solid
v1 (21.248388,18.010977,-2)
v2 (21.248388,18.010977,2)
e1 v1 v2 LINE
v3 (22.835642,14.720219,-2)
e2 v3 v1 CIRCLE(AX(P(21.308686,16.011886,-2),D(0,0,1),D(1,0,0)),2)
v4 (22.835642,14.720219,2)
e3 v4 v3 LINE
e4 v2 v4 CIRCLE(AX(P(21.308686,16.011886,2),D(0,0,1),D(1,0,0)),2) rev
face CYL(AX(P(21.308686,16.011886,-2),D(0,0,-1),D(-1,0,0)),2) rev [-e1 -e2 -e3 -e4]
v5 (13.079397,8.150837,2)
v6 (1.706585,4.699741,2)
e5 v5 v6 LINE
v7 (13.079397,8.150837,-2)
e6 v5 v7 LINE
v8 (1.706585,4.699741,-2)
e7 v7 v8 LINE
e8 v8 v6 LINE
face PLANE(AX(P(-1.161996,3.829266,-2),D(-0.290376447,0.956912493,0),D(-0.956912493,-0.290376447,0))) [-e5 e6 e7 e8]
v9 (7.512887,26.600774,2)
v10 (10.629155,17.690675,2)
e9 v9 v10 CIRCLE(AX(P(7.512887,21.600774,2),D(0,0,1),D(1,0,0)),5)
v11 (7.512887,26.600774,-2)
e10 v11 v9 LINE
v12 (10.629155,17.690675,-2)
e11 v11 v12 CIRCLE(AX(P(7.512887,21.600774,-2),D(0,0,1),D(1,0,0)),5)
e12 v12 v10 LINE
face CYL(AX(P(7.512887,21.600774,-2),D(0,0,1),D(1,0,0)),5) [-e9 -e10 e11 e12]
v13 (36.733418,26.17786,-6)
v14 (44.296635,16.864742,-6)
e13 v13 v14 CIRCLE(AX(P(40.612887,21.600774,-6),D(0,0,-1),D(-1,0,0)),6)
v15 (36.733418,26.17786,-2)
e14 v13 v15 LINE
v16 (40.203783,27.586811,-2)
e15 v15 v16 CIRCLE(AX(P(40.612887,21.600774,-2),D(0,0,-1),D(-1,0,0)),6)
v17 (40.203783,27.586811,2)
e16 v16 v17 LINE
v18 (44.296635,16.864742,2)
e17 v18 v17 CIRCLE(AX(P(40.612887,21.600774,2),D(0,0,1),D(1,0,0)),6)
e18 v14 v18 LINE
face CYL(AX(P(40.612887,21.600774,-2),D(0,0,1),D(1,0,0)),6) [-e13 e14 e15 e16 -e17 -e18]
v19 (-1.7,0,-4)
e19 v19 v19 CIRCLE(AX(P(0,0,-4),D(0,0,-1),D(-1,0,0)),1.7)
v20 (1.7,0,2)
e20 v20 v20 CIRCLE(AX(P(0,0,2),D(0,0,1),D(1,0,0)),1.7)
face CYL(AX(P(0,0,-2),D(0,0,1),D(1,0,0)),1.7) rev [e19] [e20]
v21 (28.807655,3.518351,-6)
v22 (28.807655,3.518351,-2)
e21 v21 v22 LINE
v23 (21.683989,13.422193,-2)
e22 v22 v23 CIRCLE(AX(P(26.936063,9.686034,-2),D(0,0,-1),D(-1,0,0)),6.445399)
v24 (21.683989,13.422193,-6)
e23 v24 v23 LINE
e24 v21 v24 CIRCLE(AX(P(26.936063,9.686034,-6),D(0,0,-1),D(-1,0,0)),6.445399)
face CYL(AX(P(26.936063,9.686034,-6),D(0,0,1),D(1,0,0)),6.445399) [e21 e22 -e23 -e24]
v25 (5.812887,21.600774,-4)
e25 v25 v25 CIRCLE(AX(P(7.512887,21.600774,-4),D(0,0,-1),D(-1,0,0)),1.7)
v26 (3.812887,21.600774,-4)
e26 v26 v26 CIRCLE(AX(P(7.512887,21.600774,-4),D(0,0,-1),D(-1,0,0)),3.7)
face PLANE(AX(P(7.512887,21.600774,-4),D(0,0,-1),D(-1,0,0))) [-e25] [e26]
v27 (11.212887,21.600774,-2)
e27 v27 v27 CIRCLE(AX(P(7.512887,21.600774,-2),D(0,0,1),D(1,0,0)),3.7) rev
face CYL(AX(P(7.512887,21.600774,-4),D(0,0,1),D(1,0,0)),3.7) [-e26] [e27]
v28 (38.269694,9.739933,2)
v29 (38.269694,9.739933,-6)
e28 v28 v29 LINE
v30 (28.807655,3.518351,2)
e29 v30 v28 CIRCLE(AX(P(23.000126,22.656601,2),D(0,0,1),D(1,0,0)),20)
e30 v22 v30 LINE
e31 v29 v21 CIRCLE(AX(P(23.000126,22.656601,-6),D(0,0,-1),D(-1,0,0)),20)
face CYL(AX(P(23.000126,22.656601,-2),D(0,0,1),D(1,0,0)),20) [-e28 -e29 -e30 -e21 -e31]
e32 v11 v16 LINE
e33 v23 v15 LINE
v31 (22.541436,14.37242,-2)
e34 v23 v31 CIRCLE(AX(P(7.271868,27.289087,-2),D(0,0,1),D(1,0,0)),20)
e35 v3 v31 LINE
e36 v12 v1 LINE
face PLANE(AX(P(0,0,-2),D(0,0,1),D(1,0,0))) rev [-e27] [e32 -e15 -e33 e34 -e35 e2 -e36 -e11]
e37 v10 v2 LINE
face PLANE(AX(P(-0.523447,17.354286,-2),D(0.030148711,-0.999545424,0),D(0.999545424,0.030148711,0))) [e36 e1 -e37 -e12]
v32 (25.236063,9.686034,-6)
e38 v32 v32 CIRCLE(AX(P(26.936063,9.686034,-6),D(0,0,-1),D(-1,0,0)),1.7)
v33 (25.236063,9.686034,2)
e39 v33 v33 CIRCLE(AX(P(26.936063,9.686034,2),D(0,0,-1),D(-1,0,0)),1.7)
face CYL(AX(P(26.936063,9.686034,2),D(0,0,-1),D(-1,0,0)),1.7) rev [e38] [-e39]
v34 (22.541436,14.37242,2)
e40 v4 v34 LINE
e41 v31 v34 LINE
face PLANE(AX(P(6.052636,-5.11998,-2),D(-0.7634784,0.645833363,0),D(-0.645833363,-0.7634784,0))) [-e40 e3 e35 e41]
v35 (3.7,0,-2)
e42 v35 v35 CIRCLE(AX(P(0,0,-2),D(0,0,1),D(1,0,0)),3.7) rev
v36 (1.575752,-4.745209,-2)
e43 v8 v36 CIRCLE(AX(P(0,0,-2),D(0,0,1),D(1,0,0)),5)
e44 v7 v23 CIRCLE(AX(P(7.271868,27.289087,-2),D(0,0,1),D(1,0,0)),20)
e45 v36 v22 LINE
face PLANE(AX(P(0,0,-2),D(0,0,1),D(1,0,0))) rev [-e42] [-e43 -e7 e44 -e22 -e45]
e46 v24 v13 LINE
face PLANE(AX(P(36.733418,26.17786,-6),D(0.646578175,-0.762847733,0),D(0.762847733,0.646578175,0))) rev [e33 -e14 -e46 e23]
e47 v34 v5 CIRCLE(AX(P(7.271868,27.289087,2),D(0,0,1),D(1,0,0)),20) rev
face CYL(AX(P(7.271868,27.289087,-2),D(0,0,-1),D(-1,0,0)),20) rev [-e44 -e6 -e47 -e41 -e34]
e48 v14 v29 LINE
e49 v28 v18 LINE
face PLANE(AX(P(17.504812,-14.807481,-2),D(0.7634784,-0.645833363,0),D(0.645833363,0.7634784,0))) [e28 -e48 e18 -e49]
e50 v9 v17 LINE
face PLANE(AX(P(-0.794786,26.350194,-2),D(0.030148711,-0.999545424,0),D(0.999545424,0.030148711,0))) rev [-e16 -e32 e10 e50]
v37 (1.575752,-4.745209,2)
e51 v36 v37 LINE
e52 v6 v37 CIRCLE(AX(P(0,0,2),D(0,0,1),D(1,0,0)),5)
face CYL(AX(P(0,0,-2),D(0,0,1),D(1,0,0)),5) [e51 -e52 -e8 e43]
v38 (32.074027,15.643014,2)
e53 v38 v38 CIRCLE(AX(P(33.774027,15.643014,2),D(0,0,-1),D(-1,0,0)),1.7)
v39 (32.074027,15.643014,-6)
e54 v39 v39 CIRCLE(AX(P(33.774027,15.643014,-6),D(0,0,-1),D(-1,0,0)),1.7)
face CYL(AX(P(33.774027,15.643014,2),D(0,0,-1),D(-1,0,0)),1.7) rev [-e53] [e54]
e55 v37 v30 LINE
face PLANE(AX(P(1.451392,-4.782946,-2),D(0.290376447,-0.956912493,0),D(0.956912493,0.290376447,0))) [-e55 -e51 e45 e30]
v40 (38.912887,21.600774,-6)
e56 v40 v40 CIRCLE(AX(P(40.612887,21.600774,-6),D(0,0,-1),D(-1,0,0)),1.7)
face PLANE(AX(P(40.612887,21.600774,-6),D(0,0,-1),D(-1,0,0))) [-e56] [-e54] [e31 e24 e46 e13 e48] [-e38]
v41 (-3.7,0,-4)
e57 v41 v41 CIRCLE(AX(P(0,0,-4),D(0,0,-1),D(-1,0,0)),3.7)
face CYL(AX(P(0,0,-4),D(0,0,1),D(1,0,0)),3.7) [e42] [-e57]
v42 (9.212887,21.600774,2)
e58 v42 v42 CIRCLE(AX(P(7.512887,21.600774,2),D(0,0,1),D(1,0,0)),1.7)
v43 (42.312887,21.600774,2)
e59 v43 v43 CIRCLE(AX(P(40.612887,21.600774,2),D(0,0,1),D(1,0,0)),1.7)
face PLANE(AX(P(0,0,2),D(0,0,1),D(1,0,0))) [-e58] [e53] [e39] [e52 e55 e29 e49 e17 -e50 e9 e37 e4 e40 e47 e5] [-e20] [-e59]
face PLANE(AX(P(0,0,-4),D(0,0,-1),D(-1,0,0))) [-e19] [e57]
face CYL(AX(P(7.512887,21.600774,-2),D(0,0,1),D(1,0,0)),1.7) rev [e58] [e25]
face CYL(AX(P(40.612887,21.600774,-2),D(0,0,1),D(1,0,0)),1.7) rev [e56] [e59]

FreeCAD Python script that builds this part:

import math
import FreeCAD as App
import Part
import Sketcher

V = App.Vector


def edges_at(feature, points):
    """Names of the edges that pass closest to the given points."""
    edges = feature.Shape.Edges
    near = lambda p: min(range(len(edges)), key=lambda i: edges[i].distToShape(Part.Vertex(*p))[0])
    return sorted({f"Edge{near(p) + 1}" for p in points})

doc = App.newDocument("Part")
body = doc.addObject("PartDesign::Body", "Body")

# Sketch on XY plane
sketch1 = body.newObject("Sketcher::SketchObject", "Sketch")
sketch1.AttachmentSupport = (doc.getObject("XY_Plane"), [""])
sketch1.MapMode = "FlatFace"
sketch1.addGeometry(Part.LineSegment(V(1.575752, -4.745209, 0), V(34.456925, 5.23263, 0)), False)
sketch1.addGeometry(Part.LineSegment(V(34.456925, 5.23263, 0), V(44.296635, 16.864742, 0)), False)
sketch1.addGeometry(Part.ArcOfCircle(Part.Circle(V(40.612887, 21.600774, 0), V(0, 0, 1), 6), math.radians(-52.123748), math.radians(93.909686)), False)
sketch1.addGeometry(Part.LineSegment(V(40.203783, 27.586811, 0), V(7.512887, 26.600774, 0)), False)
sketch1.addGeometry(Part.ArcOfCircle(Part.Circle(V(7.512887, 21.600774, 0), V(0, 0, 1), 5), math.radians(90), math.radians(308.554123)), False)
sketch1.addGeometry(Part.LineSegment(V(10.629155, 17.690675, 0), V(25.733767, 18.146267, 0)), False)
sketch1.addGeometry(Part.LineSegment(V(25.733767, 18.146267, 0), V(18.728666, 9.865116, 0)), False)
sketch1.addGeometry(Part.LineSegment(V(18.728666, 9.865116, 0), V(1.706585, 4.699741, 0)), False)
sketch1.addGeometry(Part.ArcOfCircle(Part.Circle(V(0, 0, 0), V(0, 0, 1), 5), math.radians(70.042871), math.radians(288.369897)), False)
sketch1.addGeometry(Part.Circle(V(0, 0, 0), V(0, 0, 1), 1.7), False)
sketch1.addGeometry(Part.Circle(V(7.512887, 21.600774, 0), V(0, 0, 1), 1.7), False)
sketch1.addGeometry(Part.Circle(V(40.612887, 21.600774, 0), V(0, 0, 1), 1.7), False)
sketch1.addConstraint(Sketcher.Constraint("Coincident", 0, 2, 1, 1))
sketch1.addConstraint(Sketcher.Constraint("Coincident", 1, 2, 2, 1))
sketch1.addConstraint(Sketcher.Constraint("Coincident", 2, 2, 3, 1))
sketch1.addConstraint(Sketcher.Constraint("Coincident", 3, 2, 4, 1))
sketch1.addConstraint(Sketcher.Constraint("Coincident", 4, 2, 5, 1))
sketch1.addConstraint(Sketcher.Constraint("Coincident", 5, 2, 6, 1))
sketch1.addConstraint(Sketcher.Constraint("Coincident", 6, 2, 7, 1))
sketch1.addConstraint(Sketcher.Constraint("Coincident", 7, 2, 8, 1))
sketch1.addConstraint(Sketcher.Constraint("Coincident", 8, 2, 0, 1))
sketch1.addConstraint(Sketcher.Constraint("Coincident", 8, 3, -1, 1))
sketch1.addConstraint(Sketcher.Constraint("Coincident", 9, 3, -1, 1))
sketch1.addConstraint(Sketcher.Constraint("Coincident", 10, 3, 4, 3))
sketch1.addConstraint(Sketcher.Constraint("Coincident", 11, 3, 2, 3))
sketch1.addConstraint(Sketcher.Constraint("Radius", 2, 6.0))
sketch1.addConstraint(Sketcher.Constraint("Radius", 4, 5.0))
sketch1.addConstraint(Sketcher.Constraint("Radius", 8, 5.0))
sketch1.addConstraint(Sketcher.Constraint("Diameter", 9, 3.4))
sketch1.addConstraint(Sketcher.Constraint("Diameter", 10, 3.4))
sketch1.addConstraint(Sketcher.Constraint("Diameter", 11, 3.4))
sketch1.addConstraint(Sketcher.Constraint("DistanceX", 4, 3, 2, 3, 33.1))
sketch1.addConstraint(Sketcher.Constraint("DistanceY", 4, 2, 4, 3, 3.910099))
sketch1.addConstraint(Sketcher.Constraint("DistanceX", 6, 2, 5, 2, 7.005101))
sketch1.addConstraint(Sketcher.Constraint("Distance", 1, 15.23568))
sketch1.addConstraint(Sketcher.Constraint("Distance", 5, 15.111482))
sketch1.addConstraint(Sketcher.Constraint("DistanceY", -1, 1, 0, 2, 5.23263))
sketch1.addConstraint(Sketcher.Constraint("DistanceY", -1, 1, 2, 2, 27.586811))
sketch1.addConstraint(Sketcher.Constraint("DistanceY", -1, 1, 7, 2, 4.699741))
sketch1.addConstraint(Sketcher.Constraint("DistanceY", 8, 2, -1, 1, 4.745209))
sketch1.addConstraint(Sketcher.Constraint("DistanceX", 0, 2, 2, 3, 6.155962))
sketch1.addConstraint(Sketcher.Constraint("DistanceX", 2, 3, 1, 2, 3.683749))
sketch1.addConstraint(Sketcher.Constraint("DistanceY", 1, 2, 4, 3, 4.736032))
sketch1.addConstraint(Sketcher.Constraint("DistanceX", 3, 2, 4, 2, 3.116268))
sketch1.addConstraint(Sketcher.Constraint("DistanceY", 4, 2, 5, 2, 0.455592))
sketch1.addConstraint(Sketcher.Constraint("DistanceY", 6, 2, 5, 2, 8.281151))
sketch1.addConstraint(Sketcher.Constraint("DistanceX", 7, 2, 4, 2, 8.92257))
pad1 = body.newObject("PartDesign::Pad", "Pad")
pad1.Profile = sketch1
pad1.Type = "TwoLengths"
pad1.Length = 2
pad1.Length2 = 2
doc.recompute()

fillet = body.newObject("PartDesign::Fillet", "Fillet")
fillet.Base = (pad1, edges_at(pad1, [(34.457, 5.233, 0), (18.729, 9.865, 0)]))
fillet.Radius = 20

# Sketch on XY plane
sketch2 = body.newObject("Sketcher::SketchObject", "Sketch001")
sketch2.AttachmentSupport = (doc.getObject("XY_Plane"), [""])
sketch2.MapMode = "FlatFace"
sketch2.AttachmentOffset = App.Placement(V(0, 0, -6), App.Rotation())
sketch2.addGeometry(Part.LineSegment(V(21.7, 13.4, 0), V(36.7, 26.2, 0)), False)
sketch2.addGeometry(Part.ArcOfCircle(Part.Circle(V(40.6, 21.6, 0), V(0, 0, 1), 6), math.radians(-52), math.radians(130)), False)
sketch2.addGeometry(Part.LineSegment(V(44.3, 16.9, 0), V(38.3, 9.7, 0)), False)
sketch2.addGeometry(Part.ArcOfCircle(Part.Circle(V(23, 22.7, 0), V(0, 0, 1), 20), math.radians(-73), math.radians(-40)), False)
sketch2.addGeometry(Part.ArcOfCircle(Part.Circle(V(26.9, 9.7, 0), V(0, 0, 1), 6.4), math.radians(145), math.radians(287)), False)
sketch2.addGeometry(Part.Circle(V(40.6, 21.6, 0), V(0, 0, 1), 1.7), False)
sketch2.addConstraint(Sketcher.Constraint("Tangent", 0, 2, 1, 2))
sketch2.addConstraint(Sketcher.Constraint("Coincident", 1, 1, 2, 1))
sketch2.addConstraint(Sketcher.Constraint("Tangent", 2, 2, 3, 2))
sketch2.addConstraint(Sketcher.Constraint("Tangent", 3, 1, 4, 2))
sketch2.addConstraint(Sketcher.Constraint("Coincident", 4, 1, 0, 1))
sketch2.addConstraint(Sketcher.Constraint("Coincident", 5, 3, 1, 3))
sketch2.addConstraint(Sketcher.Constraint("Radius", 1, 6.0))
sketch2.addConstraint(Sketcher.Constraint("Radius", 3, 20.0))
sketch2.addConstraint(Sketcher.Constraint("Diameter", 5, 3.4))
sketch2.addConstraint(Sketcher.Constraint("Radius", 4, 6.445399))
sketch2.addConstraint(Sketcher.Constraint("DistanceY", -1, 1, 3, 3, 22.656601))
sketch2.addConstraint(Sketcher.Constraint("DistanceY", 4, 3, 2, 2, 0.0539))
sketch2.addConstraint(Sketcher.Constraint("Distance", 0, 19.727959))
sketch2.addConstraint(Sketcher.Constraint("DistanceY", -1, 1, 0, 2, 26.17786))
sketch2.addConstraint(Sketcher.Constraint("DistanceY", -1, 1, 3, 1, 3.518351))
sketch2.addConstraint(Sketcher.Constraint("DistanceX", -1, 1, 4, 1, 21.683989))
sketch2.addConstraint(Sketcher.Constraint("DistanceX", 3, 3, 1, 3, 17.61276))
pad2 = body.newObject("PartDesign::Pad", "Pad001")
pad2.Profile = sketch2
pad2.Length = 4

# Sketch on XY plane
sketch3 = body.newObject("Sketcher::SketchObject", "Sketch002")
sketch3.AttachmentSupport = (doc.getObject("XY_Plane"), [""])
sketch3.MapMode = "FlatFace"
sketch3.AttachmentOffset = App.Placement(V(0, 0, -4), App.Rotation())
sketch3.addGeometry(Part.Circle(V(7.5, 21.6, 0), V(0, 0, 1), 3.7), False)
sketch3.addGeometry(Part.Circle(V(7.5, 21.6, 0), V(0, 0, 1), 1.7), False)
sketch3.addGeometry(Part.Circle(V(0, 0, 0), V(0, 0, 1), 3.7), False)
sketch3.addGeometry(Part.Circle(V(0, 0, 0), V(0, 0, 1), 1.7), False)
sketch3.addConstraint(Sketcher.Constraint("Coincident", 2, 3, -1, 1))
sketch3.addConstraint(Sketcher.Constraint("Coincident", 3, 3, -1, 1))
sketch3.addConstraint(Sketcher.Constraint("Coincident", 1, 3, 0, 3))
sketch3.addConstraint(Sketcher.Constraint("Equal", 0, 2))
sketch3.addConstraint(Sketcher.Constraint("Equal", 1, 3))
sketch3.addConstraint(Sketcher.Constraint("Diameter", 0, 7.4))
sketch3.addConstraint(Sketcher.Constraint("Diameter", 1, 3.4))
sketch3.addConstraint(Sketcher.Constraint("DistanceX", -1, 1, 0, 3, 7.512887))
sketch3.addConstraint(Sketcher.Constraint("DistanceY", -1, 1, 0, 3, 21.600774))
pad3 = body.newObject("PartDesign::Pad", "Pad002")
pad3.Profile = sketch3
pad3.Length = 2
doc.recompute()

fillet2 = body.newObject("PartDesign::Fillet", "Fillet001")
fillet2.Base = (pad3, edges_at(pad3, [(25.734, 18.146, 0)]))
fillet2.Radius = 2

# Sketch on XY plane
sketch4 = body.newObject("Sketcher::SketchObject", "Sketch003")
sketch4.AttachmentSupport = (doc.getObject("XY_Plane"), [""])
sketch4.MapMode = "FlatFace"
sketch4.AttachmentOffset = App.Placement(V(0, 0, -6), App.Rotation())
sketch4.addGeometry(Part.Circle(V(33.8, 15.6, 0), V(0, 0, 1), 1.7), False)
sketch4.addGeometry(Part.Circle(V(26.9, 9.7, 0), V(0, 0, 1), 1.7), False)
sketch4.addConstraint(Sketcher.Constraint("Equal", 0, 1))
sketch4.addConstraint(Sketcher.Constraint("Diameter", 0, 3.4))
sketch4.addConstraint(Sketcher.Constraint("DistanceY", 1, 3, 0, 3, 5.95698))
sketch4.addConstraint(Sketcher.Constraint("DistanceX", -1, 1, 0, 3, 33.774027))
sketch4.addConstraint(Sketcher.Constraint("DistanceY", -1, 1, 0, 3, 15.643014))
sketch4.addConstraint(Sketcher.Constraint("DistanceX", -1, 1, 1, 3, 26.936063))
pocket1 = body.newObject("PartDesign::Pocket", "Pocket")
pocket1.Profile = sketch4
pocket1.Type = "ThroughAll"
pocket1.Reversed = True

doc.recompute()
